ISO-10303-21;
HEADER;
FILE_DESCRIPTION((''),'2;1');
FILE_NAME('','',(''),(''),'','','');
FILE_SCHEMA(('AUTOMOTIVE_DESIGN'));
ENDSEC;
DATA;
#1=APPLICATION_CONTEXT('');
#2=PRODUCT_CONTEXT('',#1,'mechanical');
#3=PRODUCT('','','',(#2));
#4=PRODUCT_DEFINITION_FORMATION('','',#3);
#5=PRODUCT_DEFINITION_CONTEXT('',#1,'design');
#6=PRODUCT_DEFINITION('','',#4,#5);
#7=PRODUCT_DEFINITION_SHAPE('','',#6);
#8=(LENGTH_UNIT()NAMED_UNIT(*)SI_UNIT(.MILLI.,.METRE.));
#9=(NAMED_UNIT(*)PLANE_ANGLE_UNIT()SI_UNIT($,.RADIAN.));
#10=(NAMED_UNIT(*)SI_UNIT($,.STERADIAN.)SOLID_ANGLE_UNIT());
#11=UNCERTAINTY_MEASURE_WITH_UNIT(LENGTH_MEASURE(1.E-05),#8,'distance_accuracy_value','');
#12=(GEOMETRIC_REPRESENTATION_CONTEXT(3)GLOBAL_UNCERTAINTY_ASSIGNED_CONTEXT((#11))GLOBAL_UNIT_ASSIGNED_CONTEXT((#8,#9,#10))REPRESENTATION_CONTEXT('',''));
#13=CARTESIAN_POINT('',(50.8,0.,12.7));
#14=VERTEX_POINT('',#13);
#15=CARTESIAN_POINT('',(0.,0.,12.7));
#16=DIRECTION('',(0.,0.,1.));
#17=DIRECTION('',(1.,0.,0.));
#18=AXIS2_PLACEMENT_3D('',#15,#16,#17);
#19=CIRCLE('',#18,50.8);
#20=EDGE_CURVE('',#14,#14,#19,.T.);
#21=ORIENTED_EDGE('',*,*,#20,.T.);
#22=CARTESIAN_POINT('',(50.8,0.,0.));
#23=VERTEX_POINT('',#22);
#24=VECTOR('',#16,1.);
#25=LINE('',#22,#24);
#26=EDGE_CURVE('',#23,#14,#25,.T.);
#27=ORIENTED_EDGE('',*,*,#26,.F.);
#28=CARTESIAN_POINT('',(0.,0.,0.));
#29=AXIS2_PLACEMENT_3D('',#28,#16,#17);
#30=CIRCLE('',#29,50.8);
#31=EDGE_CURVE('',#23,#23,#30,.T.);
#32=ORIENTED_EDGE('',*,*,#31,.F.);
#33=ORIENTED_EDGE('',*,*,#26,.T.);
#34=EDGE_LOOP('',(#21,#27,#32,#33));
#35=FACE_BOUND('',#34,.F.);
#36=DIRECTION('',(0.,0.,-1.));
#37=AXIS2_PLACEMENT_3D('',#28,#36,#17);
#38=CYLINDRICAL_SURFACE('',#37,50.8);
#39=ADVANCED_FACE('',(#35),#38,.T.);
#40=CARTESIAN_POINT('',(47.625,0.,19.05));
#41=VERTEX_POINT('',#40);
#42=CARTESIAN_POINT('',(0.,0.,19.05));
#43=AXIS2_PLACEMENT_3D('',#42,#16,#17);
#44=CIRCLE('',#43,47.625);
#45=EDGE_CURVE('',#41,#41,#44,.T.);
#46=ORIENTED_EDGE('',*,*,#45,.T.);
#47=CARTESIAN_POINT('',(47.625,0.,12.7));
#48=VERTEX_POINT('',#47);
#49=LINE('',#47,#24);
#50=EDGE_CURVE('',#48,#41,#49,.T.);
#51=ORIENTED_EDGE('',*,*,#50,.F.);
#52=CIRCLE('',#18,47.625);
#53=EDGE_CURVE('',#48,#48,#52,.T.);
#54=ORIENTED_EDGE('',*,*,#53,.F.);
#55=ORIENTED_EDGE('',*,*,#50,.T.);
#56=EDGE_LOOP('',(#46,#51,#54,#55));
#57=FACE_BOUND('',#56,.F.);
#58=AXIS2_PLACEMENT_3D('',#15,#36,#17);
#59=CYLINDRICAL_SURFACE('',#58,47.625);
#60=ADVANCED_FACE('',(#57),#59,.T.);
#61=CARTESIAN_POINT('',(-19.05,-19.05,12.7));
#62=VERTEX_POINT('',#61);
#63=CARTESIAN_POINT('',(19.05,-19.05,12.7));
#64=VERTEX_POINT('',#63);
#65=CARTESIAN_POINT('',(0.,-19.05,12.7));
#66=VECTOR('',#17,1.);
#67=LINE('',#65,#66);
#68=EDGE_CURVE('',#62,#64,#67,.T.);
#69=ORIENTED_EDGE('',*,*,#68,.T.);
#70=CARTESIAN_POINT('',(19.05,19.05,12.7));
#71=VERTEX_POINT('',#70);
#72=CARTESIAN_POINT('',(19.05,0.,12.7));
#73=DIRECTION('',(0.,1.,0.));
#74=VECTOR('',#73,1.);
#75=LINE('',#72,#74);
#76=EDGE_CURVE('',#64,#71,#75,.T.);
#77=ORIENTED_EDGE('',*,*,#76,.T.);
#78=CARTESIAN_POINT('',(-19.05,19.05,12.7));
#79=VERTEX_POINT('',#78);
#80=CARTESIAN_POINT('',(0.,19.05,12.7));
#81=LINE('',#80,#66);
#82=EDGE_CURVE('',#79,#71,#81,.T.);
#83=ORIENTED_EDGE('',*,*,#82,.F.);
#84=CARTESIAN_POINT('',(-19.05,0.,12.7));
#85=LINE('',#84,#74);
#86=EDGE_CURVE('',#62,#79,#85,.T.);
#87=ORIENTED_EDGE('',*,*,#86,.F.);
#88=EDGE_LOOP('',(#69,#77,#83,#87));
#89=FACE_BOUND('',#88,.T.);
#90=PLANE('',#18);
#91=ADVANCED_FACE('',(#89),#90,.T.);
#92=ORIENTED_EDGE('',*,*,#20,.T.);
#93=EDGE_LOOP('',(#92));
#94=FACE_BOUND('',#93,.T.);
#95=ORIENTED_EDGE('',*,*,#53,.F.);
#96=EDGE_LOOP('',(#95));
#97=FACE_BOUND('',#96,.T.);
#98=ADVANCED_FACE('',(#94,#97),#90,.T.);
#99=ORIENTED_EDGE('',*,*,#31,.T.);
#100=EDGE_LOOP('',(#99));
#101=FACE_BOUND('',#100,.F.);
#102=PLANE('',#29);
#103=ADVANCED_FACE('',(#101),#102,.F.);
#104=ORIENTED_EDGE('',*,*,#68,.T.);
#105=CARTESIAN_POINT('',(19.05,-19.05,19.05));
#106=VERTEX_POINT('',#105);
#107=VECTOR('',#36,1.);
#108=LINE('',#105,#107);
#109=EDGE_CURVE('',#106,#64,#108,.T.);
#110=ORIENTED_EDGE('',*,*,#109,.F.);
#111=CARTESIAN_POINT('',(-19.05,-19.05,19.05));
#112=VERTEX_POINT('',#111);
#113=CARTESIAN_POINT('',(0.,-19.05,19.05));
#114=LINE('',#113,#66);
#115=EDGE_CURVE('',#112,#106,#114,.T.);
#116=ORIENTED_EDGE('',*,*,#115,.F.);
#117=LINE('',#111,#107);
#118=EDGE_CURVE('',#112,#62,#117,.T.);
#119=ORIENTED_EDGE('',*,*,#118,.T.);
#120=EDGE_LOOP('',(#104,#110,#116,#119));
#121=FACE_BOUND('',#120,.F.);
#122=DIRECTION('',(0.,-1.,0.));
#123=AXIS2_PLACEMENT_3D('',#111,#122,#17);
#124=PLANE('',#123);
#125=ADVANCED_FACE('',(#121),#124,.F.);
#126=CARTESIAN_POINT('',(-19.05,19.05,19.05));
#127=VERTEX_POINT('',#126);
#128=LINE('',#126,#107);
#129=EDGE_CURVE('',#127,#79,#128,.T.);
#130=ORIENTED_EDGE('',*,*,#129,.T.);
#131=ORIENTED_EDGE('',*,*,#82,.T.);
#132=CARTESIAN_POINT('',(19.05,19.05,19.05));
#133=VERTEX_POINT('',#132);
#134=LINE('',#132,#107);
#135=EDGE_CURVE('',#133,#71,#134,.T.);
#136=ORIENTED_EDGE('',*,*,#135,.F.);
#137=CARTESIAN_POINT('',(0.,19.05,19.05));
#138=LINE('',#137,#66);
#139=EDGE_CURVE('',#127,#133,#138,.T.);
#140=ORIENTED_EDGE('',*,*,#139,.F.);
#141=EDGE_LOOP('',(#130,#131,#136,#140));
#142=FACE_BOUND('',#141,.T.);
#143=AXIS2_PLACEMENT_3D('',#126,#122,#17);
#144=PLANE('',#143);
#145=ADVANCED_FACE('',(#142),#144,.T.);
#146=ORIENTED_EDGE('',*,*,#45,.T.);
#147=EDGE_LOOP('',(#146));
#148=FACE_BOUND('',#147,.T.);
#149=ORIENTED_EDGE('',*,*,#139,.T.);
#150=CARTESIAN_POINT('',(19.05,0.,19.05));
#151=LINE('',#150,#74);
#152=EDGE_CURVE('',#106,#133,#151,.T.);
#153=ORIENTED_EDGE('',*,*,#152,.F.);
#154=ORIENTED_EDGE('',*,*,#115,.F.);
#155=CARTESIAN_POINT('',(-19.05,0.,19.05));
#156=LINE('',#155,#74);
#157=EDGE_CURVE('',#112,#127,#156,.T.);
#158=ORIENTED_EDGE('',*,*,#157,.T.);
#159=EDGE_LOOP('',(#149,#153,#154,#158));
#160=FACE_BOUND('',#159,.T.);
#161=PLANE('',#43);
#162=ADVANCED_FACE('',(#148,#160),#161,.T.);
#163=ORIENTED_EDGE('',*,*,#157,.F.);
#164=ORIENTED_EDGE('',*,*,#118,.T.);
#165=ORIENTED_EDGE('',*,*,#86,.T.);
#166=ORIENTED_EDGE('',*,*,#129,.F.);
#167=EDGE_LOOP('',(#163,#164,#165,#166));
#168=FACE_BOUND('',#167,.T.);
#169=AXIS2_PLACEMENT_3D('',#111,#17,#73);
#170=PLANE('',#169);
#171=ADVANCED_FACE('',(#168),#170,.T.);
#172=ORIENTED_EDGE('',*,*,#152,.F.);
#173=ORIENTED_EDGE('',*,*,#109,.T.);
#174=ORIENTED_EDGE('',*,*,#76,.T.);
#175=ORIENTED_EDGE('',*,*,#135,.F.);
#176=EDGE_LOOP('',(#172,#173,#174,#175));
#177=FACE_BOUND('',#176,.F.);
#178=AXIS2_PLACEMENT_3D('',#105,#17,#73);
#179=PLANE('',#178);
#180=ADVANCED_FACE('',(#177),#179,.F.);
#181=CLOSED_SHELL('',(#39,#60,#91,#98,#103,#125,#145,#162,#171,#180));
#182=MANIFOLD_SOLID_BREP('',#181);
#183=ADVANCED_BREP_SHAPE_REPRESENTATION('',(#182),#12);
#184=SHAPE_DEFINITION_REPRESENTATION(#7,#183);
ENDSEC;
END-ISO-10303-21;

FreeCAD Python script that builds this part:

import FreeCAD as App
import Part
import Sketcher
from FreeCAD import Vector
Q = App.Units.Quantity


def add_polygon(sketch, points):
    """Adds a closed chain of lines whose ends are joined by coincident constraints."""
    first, n = sketch.GeometryCount, len(points)
    for a, b in zip(points, points[1:] + points[:1]):
        sketch.addGeometry(Part.LineSegment(App.Vector(*a, 0), App.Vector(*b, 0)), False)
    for i in range(n):
        sketch.addConstraint(Sketcher.Constraint("Coincident", first + i, 2, first + (i + 1) % n, 1))

doc = App.newDocument("Part")
body = doc.addObject("PartDesign::Body", "Body")

sketch1 = body.newObject("Sketcher::SketchObject", "Sketch")
sketch1.AttachmentSupport = (doc.getObject("XY_Plane"), [""])
sketch1.MapMode = "FlatFace"
sketch1.addGeometry(Part.Circle(Vector(0, 0, 0), Vector(0, 0, 1), 51), False)
sketch1.addConstraint([
    Sketcher.Constraint("Coincident", 0, 3, -1, 1),
    Sketcher.Constraint("Diameter", 0, Q("4 in")),
])
pad1 = body.newObject("PartDesign::Pad", "Pad")
pad1.Profile = sketch1
pad1.Length = Q("0.5 in")

sketch2 = body.newObject("Sketcher::SketchObject", "Sketch001")
sketch2.AttachmentSupport = (doc.getObject("XY_Plane"), [""])
sketch2.MapMode = "FlatFace"
sketch2.AttachmentOffset = App.Placement(Vector(0, 0, 0.5 * 25.4), App.Rotation())
sketch2.addGeometry(Part.Circle(Vector(0, 0, 0), Vector(0, 0, 1), 48), False)
sketch2.addConstraint([
    Sketcher.Constraint("Coincident", 0, 3, -1, 1),
    Sketcher.Constraint("Diameter", 0, Q("3.75 in")),
])
pad2 = body.newObject("PartDesign::Pad", "Pad001")
pad2.Profile = sketch2
pad2.Length = Q("0.25 in")

sketch3 = body.newObject("Sketcher::SketchObject", "Sketch002")
sketch3.AttachmentSupport = (doc.getObject("XY_Plane"), [""])
sketch3.MapMode = "FlatFace"
sketch3.AttachmentOffset = App.Placement(Vector(0, 0, 0.75 * 25.4), App.Rotation())
add_polygon(sketch3, [(-19, 19), (-19, -19), (19, -19), (19, 19)])
sketch3.addConstraint([
    Sketcher.Constraint("Vertical", 0),
    Sketcher.Constraint("Horizontal", 1),
    Sketcher.Constraint("Vertical", 2),
    Sketcher.Constraint("Horizontal", 3),
    Sketcher.Constraint("Symmetric", 0, 2, 2, 2, -1, 1),
    Sketcher.Constraint("Equal", 3, 0),
    Sketcher.Constraint("DistanceX", 1, 1, 1, 2, Q("1.5 in")),
])
pocket1 = body.newObject("PartDesign::Pocket", "Pocket")
pocket1.Profile = sketch3
pocket1.Length = Q("0.25 in")

doc.recompute()
